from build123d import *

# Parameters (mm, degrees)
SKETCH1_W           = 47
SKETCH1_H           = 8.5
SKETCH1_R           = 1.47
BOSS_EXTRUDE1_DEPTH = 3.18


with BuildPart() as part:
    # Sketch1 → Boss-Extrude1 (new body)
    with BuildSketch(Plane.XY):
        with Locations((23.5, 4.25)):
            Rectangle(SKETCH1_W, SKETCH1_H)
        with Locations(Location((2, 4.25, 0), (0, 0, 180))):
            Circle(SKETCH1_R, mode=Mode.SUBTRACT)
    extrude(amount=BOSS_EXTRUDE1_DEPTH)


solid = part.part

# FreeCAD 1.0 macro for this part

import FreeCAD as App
import Part
import Sketcher
from FreeCAD import Vector

doc = App.newDocument("Part")
body = doc.addObject("PartDesign::Body", "Body")

sketch1 = body.newObject("Sketcher::SketchObject", "Sketch")
sketch1.AttachmentSupport = (doc.getObject("XY_Plane"), [""])
sketch1.MapMode = "FlatFace"
sketch1.addGeometry([
    Part.LineSegment(Vector(0, 8.5, 0), Vector(0, 0, 0)),
    Part.LineSegment(Vector(0, 0, 0), Vector(47, 0, 0)),
    Part.LineSegment(Vector(47, 0, 0), Vector(47, 8.5, 0)),
    Part.LineSegment(Vector(47, 8.5, 0), Vector(0, 8.5, 0)),
    Part.Circle(Vector(2, 4.2, 0), Vector(0, 0, 1), 1.5),
], False)
sketch1.addConstraint([
    Sketcher.Constraint("Coincident", 0, 2, 1, 1),
    Sketcher.Constraint("Coincident", 1, 2, 2, 1),
    Sketcher.Constraint("Coincident", 2, 2, 3, 1),
    Sketcher.Constraint("Coincident", 3, 2, 0, 1),
    Sketcher.Constraint("Vertical", 0),
    Sketcher.Constraint("Horizontal", 1),
    Sketcher.Constraint("Vertical", 2),
    Sketcher.Constraint("Horizontal", 3),
    Sketcher.Constraint("Coincident", 0, 2, -1, 1),
    Sketcher.Constraint("Diameter", 4, 2.94),
    Sketcher.Constraint("DistanceX", 1, 1, 1, 2, 47.0),
    Sketcher.Constraint("DistanceY", 0, 2, 0, 1, 8.5),
    Sketcher.Constraint("DistanceX", -1, 1, 4, 3, 2.0),
    Sketcher.Constraint("DistanceY", -1, 1, 4, 3, 4.25),
])
pad1 = body.newObject("PartDesign::Pad", "Pad")
pad1.Profile = sketch1
pad1.Length = 3.18

doc.recompute()
